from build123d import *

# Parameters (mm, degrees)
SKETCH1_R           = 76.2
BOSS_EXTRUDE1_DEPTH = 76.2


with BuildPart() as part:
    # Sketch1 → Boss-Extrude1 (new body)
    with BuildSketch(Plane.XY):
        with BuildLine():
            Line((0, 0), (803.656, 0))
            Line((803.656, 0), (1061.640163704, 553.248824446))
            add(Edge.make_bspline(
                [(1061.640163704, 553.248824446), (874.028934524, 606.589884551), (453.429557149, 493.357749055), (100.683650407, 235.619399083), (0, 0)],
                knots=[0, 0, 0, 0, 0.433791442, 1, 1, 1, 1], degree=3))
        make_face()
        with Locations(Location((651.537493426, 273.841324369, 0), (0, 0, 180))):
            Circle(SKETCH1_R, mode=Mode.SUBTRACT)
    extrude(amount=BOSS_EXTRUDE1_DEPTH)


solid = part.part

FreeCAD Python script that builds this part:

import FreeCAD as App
import Part
import Sketcher
Q = App.Units.Quantity

doc = App.newDocument("Part")
body = doc.addObject("PartDesign::Body", "Body")

# Sketch on XY plane
sketch1 = body.newObject("Sketcher::SketchObject", "Sketch")
sketch1.AttachmentSupport = (doc.getObject("XY_Plane"), [""])
sketch1.MapMode = "FlatFace"
sketch1.addGeometry(Part.LineSegment(App.Vector(0, 0, 0), App.Vector(803.656, 0, 0)), False)
sketch1.addGeometry(Part.LineSegment(App.Vector(803.656, 0, 0), App.Vector(1061.640164, 553.248824, 0)), False)
sketch1.addGeometry(Part.BSplineCurve([App.Vector(1061.640164, 553.248824, 0), App.Vector(874.028935, 606.589885, 0), App.Vector(453.429557, 493.357749, 0), App.Vector(100.68365, 235.619399, 0), App.Vector(0, 0, 0)], [4, 1, 4], [0, 0.433791442, 1], False, 3, [1, 1, 1, 1, 1], False), False)
sketch1.addGeometry(Part.Circle(App.Vector(651.537493, 273.841324, 0), App.Vector(0, 0, 1), 76.2), False)
sketch1.addConstraint(Sketcher.Constraint("Block", 2))
sketch1.addConstraint(Sketcher.Constraint("Coincident", 0, 2, 1, 1))
sketch1.addConstraint(Sketcher.Constraint("Coincident", 1, 2, 2, 1))
sketch1.addConstraint(Sketcher.Constraint("Coincident", 2, 2, 0, 1))
sketch1.addConstraint(Sketcher.Constraint("Horizontal", 0))
sketch1.addConstraint(Sketcher.Constraint("Diameter", 3, Q("6 in")))
sketch1.addConstraint(Sketcher.Constraint("DistanceX", 0, 1, 0, 2, Q("31.64 in")))
sketch1.addConstraint(Sketcher.Constraint("DistanceY", 3, 3, 1, 2, 279.4075))
sketch1.addConstraint(Sketcher.Constraint("DistanceX", 3, 3, 1, 2, 410.10267))
pad1 = body.newObject("PartDesign::Pad", "Pad")
pad1.Profile = sketch1
pad1.Length = Q("3 in")

doc.recompute()
